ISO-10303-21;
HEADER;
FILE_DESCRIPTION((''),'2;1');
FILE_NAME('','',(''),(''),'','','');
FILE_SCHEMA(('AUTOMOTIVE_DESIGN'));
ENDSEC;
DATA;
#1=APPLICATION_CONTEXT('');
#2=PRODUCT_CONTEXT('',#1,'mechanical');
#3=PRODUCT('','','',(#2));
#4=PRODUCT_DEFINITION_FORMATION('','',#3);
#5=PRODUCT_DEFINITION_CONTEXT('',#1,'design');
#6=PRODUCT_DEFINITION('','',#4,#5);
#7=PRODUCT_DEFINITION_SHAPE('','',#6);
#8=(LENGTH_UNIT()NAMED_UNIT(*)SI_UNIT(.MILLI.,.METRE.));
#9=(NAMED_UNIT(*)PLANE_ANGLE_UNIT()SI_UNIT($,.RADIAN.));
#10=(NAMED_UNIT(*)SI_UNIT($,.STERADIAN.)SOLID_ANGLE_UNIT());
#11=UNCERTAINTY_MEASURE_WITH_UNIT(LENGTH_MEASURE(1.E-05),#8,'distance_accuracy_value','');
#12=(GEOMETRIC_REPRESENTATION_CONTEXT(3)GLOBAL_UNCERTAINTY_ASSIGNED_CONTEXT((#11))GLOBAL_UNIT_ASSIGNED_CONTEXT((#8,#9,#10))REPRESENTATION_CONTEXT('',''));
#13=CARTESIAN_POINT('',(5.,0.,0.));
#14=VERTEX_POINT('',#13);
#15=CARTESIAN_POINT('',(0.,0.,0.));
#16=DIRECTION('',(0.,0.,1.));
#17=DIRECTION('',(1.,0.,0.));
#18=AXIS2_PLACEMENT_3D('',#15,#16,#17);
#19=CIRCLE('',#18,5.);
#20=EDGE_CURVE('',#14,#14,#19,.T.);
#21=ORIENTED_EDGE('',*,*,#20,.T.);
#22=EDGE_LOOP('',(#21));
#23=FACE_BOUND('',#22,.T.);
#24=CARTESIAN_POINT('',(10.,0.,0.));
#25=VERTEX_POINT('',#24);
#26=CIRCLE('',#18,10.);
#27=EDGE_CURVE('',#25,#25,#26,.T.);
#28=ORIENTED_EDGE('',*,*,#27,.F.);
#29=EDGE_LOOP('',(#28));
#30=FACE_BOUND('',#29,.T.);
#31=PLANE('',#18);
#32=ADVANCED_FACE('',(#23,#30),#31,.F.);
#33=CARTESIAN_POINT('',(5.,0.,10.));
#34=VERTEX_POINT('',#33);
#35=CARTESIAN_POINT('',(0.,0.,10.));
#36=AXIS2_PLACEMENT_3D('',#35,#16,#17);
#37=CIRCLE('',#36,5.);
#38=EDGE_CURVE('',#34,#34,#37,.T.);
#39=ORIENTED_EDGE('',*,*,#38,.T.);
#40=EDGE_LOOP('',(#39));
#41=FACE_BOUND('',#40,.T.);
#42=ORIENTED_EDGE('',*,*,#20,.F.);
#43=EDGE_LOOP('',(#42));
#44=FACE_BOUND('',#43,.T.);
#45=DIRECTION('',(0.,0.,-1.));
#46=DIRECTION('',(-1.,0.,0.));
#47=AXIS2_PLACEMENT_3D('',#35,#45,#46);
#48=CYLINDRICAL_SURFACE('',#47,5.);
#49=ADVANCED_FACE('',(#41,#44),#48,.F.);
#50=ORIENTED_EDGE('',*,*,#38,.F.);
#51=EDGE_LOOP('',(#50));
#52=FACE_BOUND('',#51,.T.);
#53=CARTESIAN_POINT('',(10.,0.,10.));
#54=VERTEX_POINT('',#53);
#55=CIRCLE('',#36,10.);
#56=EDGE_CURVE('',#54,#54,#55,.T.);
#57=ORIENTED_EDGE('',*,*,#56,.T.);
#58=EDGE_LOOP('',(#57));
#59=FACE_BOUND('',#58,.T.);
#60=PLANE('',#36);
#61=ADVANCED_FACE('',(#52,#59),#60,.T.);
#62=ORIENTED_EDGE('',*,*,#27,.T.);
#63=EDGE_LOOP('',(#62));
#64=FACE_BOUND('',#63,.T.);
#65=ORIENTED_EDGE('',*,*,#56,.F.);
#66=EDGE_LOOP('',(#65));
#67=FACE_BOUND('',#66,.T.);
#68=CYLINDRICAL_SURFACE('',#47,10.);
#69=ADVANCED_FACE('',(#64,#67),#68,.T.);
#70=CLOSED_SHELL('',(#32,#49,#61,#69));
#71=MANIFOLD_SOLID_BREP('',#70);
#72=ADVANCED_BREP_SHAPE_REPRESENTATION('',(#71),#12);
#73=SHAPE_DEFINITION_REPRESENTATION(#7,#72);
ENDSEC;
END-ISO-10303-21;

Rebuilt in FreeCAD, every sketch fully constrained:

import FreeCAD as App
import Part
import Sketcher

doc = App.newDocument("Part")
body = doc.addObject("PartDesign::Body", "Body")

# Sketch on XY plane
sketch1 = doc.addObject("Sketcher::SketchObject", "Sketch")
body.addObject(sketch1)
sketch1.AttachmentSupport = (doc.XY_Plane, [""])
sketch1.MapMode = "FlatFace"
sketch1.addGeometry([
    Part.Circle(App.Vector(0, 0, 0), App.Vector(0, 0, 1), 10),
    Part.Circle(App.Vector(0, 0, 0), App.Vector(0, 0, 1), 5),
], False)
sketch1.addConstraint([
    Sketcher.Constraint("Coincident", 0, 3, -1, 1),
    Sketcher.Constraint("Coincident", 1, 3, -1, 1),
    Sketcher.Constraint("Diameter", 0, 20.0),
    Sketcher.Constraint("Diameter", 1, 10.0),
])
pad1 = doc.addObject("PartDesign::Pad", "Pad")
body.addObject(pad1)
pad1.Profile = sketch1
pad1.Length = 10

doc.recompute()
